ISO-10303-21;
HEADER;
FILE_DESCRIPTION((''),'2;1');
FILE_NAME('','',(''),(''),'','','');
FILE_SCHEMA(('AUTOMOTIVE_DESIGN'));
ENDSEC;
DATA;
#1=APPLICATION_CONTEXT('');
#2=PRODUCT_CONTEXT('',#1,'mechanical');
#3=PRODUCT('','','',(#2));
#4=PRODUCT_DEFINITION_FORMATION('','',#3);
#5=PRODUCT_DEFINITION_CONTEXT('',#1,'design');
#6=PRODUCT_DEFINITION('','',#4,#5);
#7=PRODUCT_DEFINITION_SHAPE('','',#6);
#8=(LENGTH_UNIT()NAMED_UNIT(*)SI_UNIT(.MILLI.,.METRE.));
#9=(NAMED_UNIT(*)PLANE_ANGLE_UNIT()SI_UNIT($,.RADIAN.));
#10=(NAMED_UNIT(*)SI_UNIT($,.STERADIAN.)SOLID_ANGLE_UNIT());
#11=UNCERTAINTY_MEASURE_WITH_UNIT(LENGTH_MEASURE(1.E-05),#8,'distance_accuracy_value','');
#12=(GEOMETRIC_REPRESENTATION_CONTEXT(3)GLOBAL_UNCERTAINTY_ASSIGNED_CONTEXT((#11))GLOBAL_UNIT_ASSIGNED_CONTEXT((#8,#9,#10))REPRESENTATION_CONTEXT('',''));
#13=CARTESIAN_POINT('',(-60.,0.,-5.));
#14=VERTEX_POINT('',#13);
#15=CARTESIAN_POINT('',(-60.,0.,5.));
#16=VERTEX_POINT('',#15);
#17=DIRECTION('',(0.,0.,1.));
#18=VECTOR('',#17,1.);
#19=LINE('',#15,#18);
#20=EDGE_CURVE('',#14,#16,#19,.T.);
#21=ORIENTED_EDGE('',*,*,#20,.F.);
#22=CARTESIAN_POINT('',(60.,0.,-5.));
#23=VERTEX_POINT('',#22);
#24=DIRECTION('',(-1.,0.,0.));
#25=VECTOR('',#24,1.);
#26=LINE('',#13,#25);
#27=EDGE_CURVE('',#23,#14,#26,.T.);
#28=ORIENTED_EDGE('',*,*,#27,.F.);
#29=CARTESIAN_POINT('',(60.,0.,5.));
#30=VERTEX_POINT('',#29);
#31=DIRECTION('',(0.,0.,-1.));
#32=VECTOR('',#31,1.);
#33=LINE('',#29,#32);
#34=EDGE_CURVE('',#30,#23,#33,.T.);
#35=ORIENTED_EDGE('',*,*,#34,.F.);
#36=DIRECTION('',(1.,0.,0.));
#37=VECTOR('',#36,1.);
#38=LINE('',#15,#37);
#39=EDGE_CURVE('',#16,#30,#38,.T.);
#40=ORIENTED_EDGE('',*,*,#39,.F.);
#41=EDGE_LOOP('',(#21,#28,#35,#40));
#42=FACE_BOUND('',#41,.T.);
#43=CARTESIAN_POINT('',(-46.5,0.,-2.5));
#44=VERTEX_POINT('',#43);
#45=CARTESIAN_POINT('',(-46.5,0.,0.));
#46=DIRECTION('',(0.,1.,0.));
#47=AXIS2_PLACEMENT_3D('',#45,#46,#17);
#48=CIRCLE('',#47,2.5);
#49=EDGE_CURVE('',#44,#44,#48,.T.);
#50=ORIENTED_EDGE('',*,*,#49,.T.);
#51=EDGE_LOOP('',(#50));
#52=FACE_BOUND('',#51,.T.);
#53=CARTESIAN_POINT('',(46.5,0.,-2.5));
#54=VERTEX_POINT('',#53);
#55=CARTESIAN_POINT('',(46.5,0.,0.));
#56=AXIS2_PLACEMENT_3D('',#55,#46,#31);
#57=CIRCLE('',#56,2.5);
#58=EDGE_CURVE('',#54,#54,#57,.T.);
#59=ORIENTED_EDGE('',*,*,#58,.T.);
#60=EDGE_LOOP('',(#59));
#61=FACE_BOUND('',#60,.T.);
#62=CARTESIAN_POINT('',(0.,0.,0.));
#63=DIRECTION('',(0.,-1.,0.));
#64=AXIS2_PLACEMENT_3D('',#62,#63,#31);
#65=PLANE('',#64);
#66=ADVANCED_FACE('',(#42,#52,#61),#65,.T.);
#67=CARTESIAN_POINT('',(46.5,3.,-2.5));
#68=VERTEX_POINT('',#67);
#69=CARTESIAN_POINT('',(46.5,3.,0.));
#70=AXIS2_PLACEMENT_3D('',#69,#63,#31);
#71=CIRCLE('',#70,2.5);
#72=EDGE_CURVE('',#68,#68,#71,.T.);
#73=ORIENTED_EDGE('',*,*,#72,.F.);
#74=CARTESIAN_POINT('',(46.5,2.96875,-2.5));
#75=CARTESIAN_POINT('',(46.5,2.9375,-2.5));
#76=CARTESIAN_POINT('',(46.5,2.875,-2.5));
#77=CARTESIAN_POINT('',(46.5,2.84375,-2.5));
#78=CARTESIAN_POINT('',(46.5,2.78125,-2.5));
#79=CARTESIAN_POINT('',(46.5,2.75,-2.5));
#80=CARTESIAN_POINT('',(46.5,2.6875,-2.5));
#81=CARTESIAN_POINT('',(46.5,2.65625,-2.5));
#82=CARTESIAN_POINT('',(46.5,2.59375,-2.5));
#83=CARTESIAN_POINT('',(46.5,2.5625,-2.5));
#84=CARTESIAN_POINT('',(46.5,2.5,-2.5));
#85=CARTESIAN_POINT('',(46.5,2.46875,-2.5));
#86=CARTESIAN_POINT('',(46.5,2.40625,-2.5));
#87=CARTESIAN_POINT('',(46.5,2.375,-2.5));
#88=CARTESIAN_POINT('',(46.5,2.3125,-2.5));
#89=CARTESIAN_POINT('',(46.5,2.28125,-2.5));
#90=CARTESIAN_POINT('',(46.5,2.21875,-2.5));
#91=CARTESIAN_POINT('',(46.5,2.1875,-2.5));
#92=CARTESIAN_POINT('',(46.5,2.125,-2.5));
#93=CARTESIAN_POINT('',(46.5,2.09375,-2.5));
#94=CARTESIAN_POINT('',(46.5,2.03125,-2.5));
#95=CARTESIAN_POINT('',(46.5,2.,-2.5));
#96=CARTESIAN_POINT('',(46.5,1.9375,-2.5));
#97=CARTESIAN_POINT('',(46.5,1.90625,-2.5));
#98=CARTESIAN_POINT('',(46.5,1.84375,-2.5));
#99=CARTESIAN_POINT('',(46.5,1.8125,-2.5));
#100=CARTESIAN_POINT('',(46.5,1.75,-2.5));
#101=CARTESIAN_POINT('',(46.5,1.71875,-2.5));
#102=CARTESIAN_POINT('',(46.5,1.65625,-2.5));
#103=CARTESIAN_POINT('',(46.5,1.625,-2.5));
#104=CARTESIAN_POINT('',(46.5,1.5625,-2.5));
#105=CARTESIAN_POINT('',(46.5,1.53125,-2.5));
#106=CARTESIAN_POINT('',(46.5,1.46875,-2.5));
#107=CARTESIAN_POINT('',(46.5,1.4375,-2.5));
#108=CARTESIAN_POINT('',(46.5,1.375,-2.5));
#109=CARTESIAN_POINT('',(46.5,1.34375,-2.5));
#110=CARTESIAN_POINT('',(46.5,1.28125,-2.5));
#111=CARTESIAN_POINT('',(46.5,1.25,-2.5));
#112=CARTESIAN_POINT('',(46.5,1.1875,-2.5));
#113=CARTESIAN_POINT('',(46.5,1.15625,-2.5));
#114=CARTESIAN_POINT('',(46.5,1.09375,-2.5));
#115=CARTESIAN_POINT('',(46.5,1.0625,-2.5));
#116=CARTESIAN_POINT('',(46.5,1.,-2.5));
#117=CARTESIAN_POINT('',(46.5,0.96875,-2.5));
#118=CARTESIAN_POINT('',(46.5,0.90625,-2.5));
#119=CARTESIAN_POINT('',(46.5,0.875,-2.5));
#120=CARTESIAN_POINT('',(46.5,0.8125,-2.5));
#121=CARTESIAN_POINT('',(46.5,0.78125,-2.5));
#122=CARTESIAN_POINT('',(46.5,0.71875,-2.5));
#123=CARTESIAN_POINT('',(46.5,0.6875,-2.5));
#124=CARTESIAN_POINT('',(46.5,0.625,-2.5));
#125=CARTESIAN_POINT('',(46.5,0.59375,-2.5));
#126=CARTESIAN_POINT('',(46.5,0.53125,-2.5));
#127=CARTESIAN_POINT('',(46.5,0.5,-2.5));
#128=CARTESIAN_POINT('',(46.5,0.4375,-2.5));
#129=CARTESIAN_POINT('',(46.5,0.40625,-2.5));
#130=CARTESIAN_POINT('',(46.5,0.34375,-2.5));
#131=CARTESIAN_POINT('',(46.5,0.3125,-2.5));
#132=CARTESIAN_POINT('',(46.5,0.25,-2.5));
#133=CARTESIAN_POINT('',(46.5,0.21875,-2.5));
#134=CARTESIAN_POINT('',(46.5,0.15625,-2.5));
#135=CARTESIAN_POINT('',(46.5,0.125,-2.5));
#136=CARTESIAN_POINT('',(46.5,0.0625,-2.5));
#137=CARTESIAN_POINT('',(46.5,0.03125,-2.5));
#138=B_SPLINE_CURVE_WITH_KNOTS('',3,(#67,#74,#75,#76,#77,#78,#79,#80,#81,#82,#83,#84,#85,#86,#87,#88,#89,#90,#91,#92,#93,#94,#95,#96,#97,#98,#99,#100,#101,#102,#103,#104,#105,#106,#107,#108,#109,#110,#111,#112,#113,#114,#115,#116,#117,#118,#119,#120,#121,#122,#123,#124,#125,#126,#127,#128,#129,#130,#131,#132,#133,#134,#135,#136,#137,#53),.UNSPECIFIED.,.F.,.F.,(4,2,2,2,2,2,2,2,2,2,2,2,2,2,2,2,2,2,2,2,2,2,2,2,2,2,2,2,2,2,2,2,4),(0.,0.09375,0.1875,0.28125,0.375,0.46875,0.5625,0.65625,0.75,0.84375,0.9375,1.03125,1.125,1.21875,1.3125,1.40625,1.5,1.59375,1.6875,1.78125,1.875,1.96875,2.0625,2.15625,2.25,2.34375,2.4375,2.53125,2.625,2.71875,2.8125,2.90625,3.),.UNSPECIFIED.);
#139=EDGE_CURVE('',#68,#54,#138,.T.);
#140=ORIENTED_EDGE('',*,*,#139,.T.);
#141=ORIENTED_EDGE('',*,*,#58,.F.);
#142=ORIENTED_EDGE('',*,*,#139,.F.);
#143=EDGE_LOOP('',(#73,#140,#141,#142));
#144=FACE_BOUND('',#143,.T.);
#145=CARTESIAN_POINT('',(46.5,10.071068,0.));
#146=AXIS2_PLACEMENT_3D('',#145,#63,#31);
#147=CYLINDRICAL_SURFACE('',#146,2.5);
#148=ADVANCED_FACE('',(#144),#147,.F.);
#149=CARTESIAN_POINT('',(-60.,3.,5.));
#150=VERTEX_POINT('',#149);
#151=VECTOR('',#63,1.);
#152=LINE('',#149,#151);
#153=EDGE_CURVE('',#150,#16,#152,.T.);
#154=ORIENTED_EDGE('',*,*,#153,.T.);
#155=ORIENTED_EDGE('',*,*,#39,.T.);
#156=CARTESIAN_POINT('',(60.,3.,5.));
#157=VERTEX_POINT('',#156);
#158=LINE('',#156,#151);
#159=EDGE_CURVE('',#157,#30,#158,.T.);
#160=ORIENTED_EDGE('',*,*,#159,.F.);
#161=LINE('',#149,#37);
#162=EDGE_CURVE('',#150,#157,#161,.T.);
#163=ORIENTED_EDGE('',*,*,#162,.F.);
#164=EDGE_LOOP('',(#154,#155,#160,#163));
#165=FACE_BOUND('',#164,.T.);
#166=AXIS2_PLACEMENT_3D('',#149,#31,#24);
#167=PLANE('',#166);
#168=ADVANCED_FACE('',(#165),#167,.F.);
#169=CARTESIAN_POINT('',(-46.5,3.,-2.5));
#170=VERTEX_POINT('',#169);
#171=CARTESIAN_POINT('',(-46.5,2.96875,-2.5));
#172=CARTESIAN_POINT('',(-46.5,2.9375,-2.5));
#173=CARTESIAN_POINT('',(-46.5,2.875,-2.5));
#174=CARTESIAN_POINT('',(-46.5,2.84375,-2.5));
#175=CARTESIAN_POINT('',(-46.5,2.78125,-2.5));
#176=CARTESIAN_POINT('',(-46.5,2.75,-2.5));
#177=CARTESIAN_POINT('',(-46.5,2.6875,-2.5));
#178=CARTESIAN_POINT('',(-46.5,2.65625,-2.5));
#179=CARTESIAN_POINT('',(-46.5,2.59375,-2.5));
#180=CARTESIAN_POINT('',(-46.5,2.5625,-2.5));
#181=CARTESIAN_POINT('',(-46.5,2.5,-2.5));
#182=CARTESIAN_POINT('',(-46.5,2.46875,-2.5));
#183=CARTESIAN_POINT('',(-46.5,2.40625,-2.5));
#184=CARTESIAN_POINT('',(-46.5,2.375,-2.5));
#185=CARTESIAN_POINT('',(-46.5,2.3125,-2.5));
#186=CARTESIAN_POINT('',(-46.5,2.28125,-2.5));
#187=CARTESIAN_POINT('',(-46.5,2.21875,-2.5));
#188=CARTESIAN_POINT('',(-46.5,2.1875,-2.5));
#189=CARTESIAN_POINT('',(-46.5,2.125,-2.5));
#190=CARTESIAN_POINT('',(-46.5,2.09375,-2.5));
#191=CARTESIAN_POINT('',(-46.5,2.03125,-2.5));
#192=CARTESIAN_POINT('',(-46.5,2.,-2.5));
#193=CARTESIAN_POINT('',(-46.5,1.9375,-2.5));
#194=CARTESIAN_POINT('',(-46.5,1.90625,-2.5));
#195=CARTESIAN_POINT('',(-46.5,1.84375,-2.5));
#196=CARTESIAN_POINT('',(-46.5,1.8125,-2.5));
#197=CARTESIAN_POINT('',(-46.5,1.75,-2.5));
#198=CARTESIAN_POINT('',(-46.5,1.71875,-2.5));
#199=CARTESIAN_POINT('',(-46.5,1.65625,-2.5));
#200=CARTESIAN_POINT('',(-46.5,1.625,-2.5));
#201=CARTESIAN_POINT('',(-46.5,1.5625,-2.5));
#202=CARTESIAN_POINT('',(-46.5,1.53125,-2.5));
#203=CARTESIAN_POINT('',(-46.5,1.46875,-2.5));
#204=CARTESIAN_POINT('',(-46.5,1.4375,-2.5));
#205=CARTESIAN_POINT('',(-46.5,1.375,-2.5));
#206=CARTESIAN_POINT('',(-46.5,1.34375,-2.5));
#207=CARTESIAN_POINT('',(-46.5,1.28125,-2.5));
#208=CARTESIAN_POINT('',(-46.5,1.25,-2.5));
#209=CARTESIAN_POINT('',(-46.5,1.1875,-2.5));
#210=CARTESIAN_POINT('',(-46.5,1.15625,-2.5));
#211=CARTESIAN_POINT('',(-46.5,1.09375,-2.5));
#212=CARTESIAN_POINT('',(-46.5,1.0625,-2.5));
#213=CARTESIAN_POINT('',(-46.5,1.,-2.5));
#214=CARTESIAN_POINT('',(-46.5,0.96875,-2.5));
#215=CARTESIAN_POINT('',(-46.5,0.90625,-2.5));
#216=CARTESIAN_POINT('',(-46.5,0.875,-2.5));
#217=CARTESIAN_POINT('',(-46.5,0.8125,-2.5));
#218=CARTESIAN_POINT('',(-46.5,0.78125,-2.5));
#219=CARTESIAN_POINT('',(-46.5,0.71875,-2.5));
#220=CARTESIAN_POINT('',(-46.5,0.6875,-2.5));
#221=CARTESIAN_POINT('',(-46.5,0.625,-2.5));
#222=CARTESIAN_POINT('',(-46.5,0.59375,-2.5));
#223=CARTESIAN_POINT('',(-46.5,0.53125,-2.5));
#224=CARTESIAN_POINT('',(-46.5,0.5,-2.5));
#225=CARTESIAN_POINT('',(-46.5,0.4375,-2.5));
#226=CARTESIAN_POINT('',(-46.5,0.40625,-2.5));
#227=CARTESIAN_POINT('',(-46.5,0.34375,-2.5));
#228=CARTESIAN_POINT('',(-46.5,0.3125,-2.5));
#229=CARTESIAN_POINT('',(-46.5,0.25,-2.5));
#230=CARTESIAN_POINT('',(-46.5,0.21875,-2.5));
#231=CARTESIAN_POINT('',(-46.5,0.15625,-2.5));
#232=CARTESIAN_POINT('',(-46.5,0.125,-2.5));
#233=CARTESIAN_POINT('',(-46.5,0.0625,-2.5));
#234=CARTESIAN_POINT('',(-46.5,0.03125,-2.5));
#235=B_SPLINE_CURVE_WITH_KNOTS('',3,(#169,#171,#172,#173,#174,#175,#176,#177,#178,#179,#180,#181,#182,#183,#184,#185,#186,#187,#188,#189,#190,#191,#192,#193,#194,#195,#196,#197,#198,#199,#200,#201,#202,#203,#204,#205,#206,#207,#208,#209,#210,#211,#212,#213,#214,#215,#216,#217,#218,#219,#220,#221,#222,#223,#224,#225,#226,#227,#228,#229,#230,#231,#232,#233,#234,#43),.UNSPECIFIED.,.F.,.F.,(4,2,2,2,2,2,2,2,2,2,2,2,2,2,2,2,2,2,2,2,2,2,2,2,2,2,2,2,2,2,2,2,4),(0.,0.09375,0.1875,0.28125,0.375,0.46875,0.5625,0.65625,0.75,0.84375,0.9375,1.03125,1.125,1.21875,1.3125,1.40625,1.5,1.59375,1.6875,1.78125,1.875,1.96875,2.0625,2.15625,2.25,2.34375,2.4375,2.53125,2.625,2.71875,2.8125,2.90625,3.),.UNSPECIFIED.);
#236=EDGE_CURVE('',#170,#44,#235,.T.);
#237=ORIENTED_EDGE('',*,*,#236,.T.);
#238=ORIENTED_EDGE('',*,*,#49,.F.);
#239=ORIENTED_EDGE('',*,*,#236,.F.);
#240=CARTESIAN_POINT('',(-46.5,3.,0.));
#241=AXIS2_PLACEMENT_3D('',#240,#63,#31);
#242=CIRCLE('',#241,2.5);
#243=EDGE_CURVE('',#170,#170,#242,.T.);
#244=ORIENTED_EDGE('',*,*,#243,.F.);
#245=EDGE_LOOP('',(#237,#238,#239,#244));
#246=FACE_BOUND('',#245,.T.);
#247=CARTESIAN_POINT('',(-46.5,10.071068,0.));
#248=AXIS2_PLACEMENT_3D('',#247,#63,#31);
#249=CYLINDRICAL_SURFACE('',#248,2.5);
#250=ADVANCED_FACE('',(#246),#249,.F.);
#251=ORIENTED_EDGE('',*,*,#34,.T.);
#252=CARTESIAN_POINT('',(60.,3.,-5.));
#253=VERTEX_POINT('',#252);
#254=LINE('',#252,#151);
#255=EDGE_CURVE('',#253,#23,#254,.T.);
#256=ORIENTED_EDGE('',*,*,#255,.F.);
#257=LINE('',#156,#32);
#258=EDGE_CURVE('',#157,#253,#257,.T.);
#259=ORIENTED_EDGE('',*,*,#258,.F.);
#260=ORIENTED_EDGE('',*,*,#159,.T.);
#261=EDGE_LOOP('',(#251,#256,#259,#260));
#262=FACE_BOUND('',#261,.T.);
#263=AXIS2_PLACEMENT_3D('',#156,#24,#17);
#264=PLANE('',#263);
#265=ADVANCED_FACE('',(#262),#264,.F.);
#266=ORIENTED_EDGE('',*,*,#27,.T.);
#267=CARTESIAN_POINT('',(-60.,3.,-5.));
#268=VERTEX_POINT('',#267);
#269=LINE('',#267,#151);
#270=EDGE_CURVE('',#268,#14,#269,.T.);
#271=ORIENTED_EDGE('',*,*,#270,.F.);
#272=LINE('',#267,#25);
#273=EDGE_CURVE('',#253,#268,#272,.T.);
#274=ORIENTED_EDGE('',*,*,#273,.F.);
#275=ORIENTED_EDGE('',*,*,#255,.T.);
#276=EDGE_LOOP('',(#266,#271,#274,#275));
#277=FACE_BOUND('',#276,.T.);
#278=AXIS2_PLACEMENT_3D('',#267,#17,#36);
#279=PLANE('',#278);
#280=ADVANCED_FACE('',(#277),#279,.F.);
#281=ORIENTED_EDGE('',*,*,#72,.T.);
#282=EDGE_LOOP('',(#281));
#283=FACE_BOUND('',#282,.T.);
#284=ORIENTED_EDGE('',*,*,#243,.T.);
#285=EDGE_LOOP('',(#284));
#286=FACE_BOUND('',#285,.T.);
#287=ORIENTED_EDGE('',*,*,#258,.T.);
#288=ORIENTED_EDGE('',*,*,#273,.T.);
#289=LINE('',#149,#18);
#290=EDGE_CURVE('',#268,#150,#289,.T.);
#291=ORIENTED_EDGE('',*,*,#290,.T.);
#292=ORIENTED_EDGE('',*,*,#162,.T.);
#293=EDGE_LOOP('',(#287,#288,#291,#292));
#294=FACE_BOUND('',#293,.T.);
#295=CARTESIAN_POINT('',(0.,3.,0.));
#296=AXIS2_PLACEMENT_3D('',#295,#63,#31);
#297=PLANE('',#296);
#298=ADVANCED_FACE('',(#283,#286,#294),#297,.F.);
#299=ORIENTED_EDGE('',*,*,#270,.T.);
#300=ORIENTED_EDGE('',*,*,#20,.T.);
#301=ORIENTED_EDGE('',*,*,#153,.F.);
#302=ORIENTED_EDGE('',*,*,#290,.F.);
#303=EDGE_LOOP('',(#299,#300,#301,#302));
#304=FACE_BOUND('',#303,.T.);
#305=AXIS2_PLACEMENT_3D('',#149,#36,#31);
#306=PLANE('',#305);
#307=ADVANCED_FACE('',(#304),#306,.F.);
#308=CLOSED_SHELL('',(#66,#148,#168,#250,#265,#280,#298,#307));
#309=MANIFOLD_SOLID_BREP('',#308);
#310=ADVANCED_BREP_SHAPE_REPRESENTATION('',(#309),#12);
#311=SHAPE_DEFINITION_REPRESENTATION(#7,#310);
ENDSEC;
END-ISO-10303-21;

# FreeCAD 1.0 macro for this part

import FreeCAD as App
import Part
import Sketcher

V = App.Vector
Q = App.Units.Quantity


def add_polygon(sketch, points):
    """Adds a closed chain of lines whose ends are joined by coincident constraints."""
    first, n = sketch.GeometryCount, len(points)
    for a, b in zip(points, points[1:] + points[:1]):
        sketch.addGeometry(Part.LineSegment(App.Vector(*a, 0), App.Vector(*b, 0)), False)
    for i in range(n):
        sketch.addConstraint(Sketcher.Constraint("Coincident", first + i, 2, first + (i + 1) % n, 1))

doc = App.newDocument("Part")
body = doc.addObject("PartDesign::Body", "Body")

# Sketch on XZ plane
sketch1 = doc.addObject("Sketcher::SketchObject", "Sketch")
body.addObject(sketch1)
sketch1.AttachmentSupport = (doc.XZ_Plane, [""])
sketch1.MapMode = "FlatFace"
add_polygon(sketch1, [(-60, -5), (-60, 5), (60, 5), (60, -5)])  # lines 0-3
sketch1.addConstraint([
    Sketcher.Constraint("Vertical", 0),
    Sketcher.Constraint("Horizontal", 1),
    Sketcher.Constraint("Vertical", 2),
    Sketcher.Constraint("Horizontal", 3),
    Sketcher.Constraint("Symmetric", 0, 2, 2, 2, -1, 1),
    Sketcher.Constraint("DistanceX", 1, 1, 1, 2, Q("120 mm")),
    Sketcher.Constraint("DistanceY", 0, 1, 0, 2, Q("10 mm")),
])
pad1 = doc.addObject("PartDesign::Pad", "Pad")
body.addObject(pad1)
pad1.Profile = sketch1
pad1.Length = 3
pad1.Reversed = True

# Sketch on XZ plane
sketch2 = doc.addObject("Sketcher::SketchObject", "Sketch001")
body.addObject(sketch2)
sketch2.AttachmentSupport = (doc.XZ_Plane, [""])
sketch2.MapMode = "FlatFace"
sketch2.addGeometry([
    Part.Circle(V(-46.5, 0, 0), V(0, 0, 1), 2.5),
    Part.Circle(V(46.5, 0, 0), V(0, 0, 1), 2.5),
], False)
sketch2.addConstraint([
    Sketcher.Constraint("Equal", 0, 1),
    Sketcher.Constraint("Symmetric", 0, 3, 1, 3, -1, 1),
    Sketcher.Constraint("PointOnObject", 0, 3, -1),
    Sketcher.Constraint("Diameter", 0, Q("5 mm")),
    Sketcher.Constraint("DistanceX", 0, 3, 1, 3, Q("93 mm")),
])
pocket1 = doc.addObject("PartDesign::Pocket", "Pocket")
body.addObject(pocket1)
pocket1.Profile = sketch2
pocket1.Length = 3

doc.recompute()
